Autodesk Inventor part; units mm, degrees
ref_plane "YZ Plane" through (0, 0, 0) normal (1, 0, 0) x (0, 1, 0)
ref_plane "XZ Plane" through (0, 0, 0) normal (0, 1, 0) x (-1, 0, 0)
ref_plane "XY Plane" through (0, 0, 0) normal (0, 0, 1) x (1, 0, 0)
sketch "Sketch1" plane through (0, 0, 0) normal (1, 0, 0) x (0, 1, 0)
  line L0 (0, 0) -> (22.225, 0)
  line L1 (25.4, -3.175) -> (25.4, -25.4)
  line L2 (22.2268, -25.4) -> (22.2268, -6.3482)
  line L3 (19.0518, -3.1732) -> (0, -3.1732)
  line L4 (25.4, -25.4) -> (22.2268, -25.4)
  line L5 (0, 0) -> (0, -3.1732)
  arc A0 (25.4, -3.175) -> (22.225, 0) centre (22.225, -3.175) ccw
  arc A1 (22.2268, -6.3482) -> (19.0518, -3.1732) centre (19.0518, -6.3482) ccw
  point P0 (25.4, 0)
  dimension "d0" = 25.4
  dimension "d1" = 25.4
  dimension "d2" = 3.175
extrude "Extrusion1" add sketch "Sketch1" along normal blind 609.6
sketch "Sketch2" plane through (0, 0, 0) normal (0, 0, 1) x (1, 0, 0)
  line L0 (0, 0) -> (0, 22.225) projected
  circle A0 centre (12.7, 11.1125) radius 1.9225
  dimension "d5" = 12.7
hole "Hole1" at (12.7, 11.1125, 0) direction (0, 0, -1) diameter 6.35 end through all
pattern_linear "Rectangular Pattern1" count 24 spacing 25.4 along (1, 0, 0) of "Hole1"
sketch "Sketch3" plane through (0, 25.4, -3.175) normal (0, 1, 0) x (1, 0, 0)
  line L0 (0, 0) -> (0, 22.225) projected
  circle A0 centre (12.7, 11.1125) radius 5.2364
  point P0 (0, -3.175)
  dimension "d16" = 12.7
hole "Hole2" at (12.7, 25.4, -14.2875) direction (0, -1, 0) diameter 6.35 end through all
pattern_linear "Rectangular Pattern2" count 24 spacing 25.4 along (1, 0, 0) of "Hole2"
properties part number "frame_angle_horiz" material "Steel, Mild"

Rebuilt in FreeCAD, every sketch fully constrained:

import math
import FreeCAD as App
import Part
import Sketcher
from FreeCAD import Vector
Q = App.Units.Quantity

doc = App.newDocument("Part")
body = doc.addObject("PartDesign::Body", "Body")

sketch1 = doc.addObject("Sketcher::SketchObject", "Sketch")
body.addObject(sketch1)
sketch1.AttachmentSupport = (doc.YZ_Plane, [""])
sketch1.MapMode = "FlatFace"
sketch1.addGeometry(Part.LineSegment(Vector(22.2, 0, 0), Vector(0, 0, 0)), False)
sketch1.addGeometry(Part.LineSegment(Vector(0, 0, 0), Vector(0, -3.2, 0)), False)
sketch1.addGeometry(Part.LineSegment(Vector(0, -3.2, 0), Vector(19.1, -3.2, 0)), False)
sketch1.addGeometry(Part.ArcOfCircle(Part.Circle(Vector(19.1, -6.3, 0), Vector(0, 0, 1), 3.2), math.radians(0), math.radians(90)), False)
sketch1.addGeometry(Part.LineSegment(Vector(22.2, -6.3, 0), Vector(22.2, -25.4, 0)), False)
sketch1.addGeometry(Part.LineSegment(Vector(22.2, -25.4, 0), Vector(25.4, -25.4, 0)), False)
sketch1.addGeometry(Part.LineSegment(Vector(25.4, -25.4, 0), Vector(25.4, -3.2, 0)), False)
sketch1.addGeometry(Part.ArcOfCircle(Part.Circle(Vector(22.2, -3.2, 0), Vector(0, 0, 1), 3.2), math.radians(0), math.radians(90)), False)
sketch1.addConstraint(Sketcher.Constraint("Coincident", 0, 2, 1, 1))
sketch1.addConstraint(Sketcher.Constraint("Coincident", 1, 2, 2, 1))
sketch1.addConstraint(Sketcher.Constraint("Tangent", 2, 2, 3, 2))
sketch1.addConstraint(Sketcher.Constraint("Tangent", 3, 1, 4, 1))
sketch1.addConstraint(Sketcher.Constraint("Coincident", 4, 2, 5, 1))
sketch1.addConstraint(Sketcher.Constraint("Coincident", 5, 2, 6, 1))
sketch1.addConstraint(Sketcher.Constraint("Tangent", 6, 2, 7, 1))
sketch1.addConstraint(Sketcher.Constraint("Tangent", 7, 2, 0, 1))
sketch1.addConstraint(Sketcher.Constraint("Horizontal", 0))
sketch1.addConstraint(Sketcher.Constraint("Vertical", 1))
sketch1.addConstraint(Sketcher.Constraint("Horizontal", 2))
sketch1.addConstraint(Sketcher.Constraint("Vertical", 4))
sketch1.addConstraint(Sketcher.Constraint("Horizontal", 5))
sketch1.addConstraint(Sketcher.Constraint("Vertical", 6))
sketch1.addConstraint(Sketcher.Constraint("Coincident", 0, 2, -1, 1))
sketch1.addConstraint(Sketcher.Constraint("Equal", 3, 7))
sketch1.addConstraint(Sketcher.Constraint("Equal", 5, 1))
sketch1.addConstraint(Sketcher.Constraint("Equal", 2, 4))
sketch1.addConstraint(Sketcher.Constraint("DistanceY", 4, 2, -1, 1, Q("1 in")))
sketch1.addConstraint(Sketcher.Constraint("Radius", 3, Q("0.125 in")))
sketch1.addConstraint(Sketcher.Constraint("DistanceX", 2, 1, 2, 2, Q("19.0518 mm")))
pad1 = doc.addObject("PartDesign::Pad", "Pad")
body.addObject(pad1)
pad1.Profile = sketch1
pad1.Length = Q("24 in")

sketch2 = doc.addObject("Sketcher::SketchObject", "Sketch001")
body.addObject(sketch2)
sketch2.AttachmentSupport = (doc.XY_Plane, [""])
sketch2.MapMode = "FlatFace"
sketch2.addGeometry(Part.Circle(Vector(12.7, 11.1, 0), Vector(0, 0, 1), 3.2), False)
sketch2.addConstraint(Sketcher.Constraint("Diameter", 0, Q("0.25 in")))
sketch2.addConstraint(Sketcher.Constraint("DistanceX", -1, 1, 0, 3, Q("0.5 in")))
sketch2.addConstraint(Sketcher.Constraint("DistanceY", -1, 1, 0, 3, Q("0.4375 in")))
doc.recompute()
hole = doc.addObject("PartDesign::Hole", "Hole")
body.addObject(hole)
hole.Profile = sketch2
hole.ThreadType = "None"
hole.Diameter = Q("0.25 in")
hole.DepthType = "ThroughAll"
doc.recompute()

linearpattern = doc.addObject("PartDesign::LinearPattern", "LinearPattern")
body.addObject(linearpattern)
linearpattern.Originals = [hole]
linearpattern.Direction = (doc.X_Axis, [""])
linearpattern.Mode = "offset"
linearpattern.Offset = Q("1 in")
linearpattern.Occurrences = 24
body.Tip = linearpattern

sketch3 = doc.addObject("Sketcher::SketchObject", "Sketch002")
body.addObject(sketch3)
sketch3.AttachmentSupport = (doc.XZ_Plane, [""])
sketch3.MapMode = "FlatFace"
sketch3.AttachmentOffset = App.Placement(Vector(0, 0, -1 * 25.4), App.Rotation())
sketch3.addGeometry(Part.Circle(Vector(12.7, -14.3, 0), Vector(0, 0, 1), 3.2), False)
sketch3.addConstraint(Sketcher.Constraint("Diameter", 0, Q("0.25 in")))
sketch3.addConstraint(Sketcher.Constraint("DistanceX", -1, 1, 0, 3, Q("0.5 in")))
sketch3.addConstraint(Sketcher.Constraint("DistanceY", 0, 3, -1, 1, Q("0.5625 in")))
doc.recompute()
hole2 = doc.addObject("PartDesign::Hole", "Hole001")
body.addObject(hole2)
hole2.Profile = sketch3
hole2.ThreadType = "None"
hole2.Diameter = Q("0.25 in")
hole2.DepthType = "ThroughAll"
hole2.Reversed = True
doc.recompute()

linearpattern2 = doc.addObject("PartDesign::LinearPattern", "LinearPattern001")
body.addObject(linearpattern2)
linearpattern2.Originals = [hole2]
linearpattern2.Direction = (doc.X_Axis, [""])
linearpattern2.Mode = "offset"
linearpattern2.Offset = Q("1 in")
linearpattern2.Occurrences = 24
body.Tip = linearpattern2

doc.recompute()
